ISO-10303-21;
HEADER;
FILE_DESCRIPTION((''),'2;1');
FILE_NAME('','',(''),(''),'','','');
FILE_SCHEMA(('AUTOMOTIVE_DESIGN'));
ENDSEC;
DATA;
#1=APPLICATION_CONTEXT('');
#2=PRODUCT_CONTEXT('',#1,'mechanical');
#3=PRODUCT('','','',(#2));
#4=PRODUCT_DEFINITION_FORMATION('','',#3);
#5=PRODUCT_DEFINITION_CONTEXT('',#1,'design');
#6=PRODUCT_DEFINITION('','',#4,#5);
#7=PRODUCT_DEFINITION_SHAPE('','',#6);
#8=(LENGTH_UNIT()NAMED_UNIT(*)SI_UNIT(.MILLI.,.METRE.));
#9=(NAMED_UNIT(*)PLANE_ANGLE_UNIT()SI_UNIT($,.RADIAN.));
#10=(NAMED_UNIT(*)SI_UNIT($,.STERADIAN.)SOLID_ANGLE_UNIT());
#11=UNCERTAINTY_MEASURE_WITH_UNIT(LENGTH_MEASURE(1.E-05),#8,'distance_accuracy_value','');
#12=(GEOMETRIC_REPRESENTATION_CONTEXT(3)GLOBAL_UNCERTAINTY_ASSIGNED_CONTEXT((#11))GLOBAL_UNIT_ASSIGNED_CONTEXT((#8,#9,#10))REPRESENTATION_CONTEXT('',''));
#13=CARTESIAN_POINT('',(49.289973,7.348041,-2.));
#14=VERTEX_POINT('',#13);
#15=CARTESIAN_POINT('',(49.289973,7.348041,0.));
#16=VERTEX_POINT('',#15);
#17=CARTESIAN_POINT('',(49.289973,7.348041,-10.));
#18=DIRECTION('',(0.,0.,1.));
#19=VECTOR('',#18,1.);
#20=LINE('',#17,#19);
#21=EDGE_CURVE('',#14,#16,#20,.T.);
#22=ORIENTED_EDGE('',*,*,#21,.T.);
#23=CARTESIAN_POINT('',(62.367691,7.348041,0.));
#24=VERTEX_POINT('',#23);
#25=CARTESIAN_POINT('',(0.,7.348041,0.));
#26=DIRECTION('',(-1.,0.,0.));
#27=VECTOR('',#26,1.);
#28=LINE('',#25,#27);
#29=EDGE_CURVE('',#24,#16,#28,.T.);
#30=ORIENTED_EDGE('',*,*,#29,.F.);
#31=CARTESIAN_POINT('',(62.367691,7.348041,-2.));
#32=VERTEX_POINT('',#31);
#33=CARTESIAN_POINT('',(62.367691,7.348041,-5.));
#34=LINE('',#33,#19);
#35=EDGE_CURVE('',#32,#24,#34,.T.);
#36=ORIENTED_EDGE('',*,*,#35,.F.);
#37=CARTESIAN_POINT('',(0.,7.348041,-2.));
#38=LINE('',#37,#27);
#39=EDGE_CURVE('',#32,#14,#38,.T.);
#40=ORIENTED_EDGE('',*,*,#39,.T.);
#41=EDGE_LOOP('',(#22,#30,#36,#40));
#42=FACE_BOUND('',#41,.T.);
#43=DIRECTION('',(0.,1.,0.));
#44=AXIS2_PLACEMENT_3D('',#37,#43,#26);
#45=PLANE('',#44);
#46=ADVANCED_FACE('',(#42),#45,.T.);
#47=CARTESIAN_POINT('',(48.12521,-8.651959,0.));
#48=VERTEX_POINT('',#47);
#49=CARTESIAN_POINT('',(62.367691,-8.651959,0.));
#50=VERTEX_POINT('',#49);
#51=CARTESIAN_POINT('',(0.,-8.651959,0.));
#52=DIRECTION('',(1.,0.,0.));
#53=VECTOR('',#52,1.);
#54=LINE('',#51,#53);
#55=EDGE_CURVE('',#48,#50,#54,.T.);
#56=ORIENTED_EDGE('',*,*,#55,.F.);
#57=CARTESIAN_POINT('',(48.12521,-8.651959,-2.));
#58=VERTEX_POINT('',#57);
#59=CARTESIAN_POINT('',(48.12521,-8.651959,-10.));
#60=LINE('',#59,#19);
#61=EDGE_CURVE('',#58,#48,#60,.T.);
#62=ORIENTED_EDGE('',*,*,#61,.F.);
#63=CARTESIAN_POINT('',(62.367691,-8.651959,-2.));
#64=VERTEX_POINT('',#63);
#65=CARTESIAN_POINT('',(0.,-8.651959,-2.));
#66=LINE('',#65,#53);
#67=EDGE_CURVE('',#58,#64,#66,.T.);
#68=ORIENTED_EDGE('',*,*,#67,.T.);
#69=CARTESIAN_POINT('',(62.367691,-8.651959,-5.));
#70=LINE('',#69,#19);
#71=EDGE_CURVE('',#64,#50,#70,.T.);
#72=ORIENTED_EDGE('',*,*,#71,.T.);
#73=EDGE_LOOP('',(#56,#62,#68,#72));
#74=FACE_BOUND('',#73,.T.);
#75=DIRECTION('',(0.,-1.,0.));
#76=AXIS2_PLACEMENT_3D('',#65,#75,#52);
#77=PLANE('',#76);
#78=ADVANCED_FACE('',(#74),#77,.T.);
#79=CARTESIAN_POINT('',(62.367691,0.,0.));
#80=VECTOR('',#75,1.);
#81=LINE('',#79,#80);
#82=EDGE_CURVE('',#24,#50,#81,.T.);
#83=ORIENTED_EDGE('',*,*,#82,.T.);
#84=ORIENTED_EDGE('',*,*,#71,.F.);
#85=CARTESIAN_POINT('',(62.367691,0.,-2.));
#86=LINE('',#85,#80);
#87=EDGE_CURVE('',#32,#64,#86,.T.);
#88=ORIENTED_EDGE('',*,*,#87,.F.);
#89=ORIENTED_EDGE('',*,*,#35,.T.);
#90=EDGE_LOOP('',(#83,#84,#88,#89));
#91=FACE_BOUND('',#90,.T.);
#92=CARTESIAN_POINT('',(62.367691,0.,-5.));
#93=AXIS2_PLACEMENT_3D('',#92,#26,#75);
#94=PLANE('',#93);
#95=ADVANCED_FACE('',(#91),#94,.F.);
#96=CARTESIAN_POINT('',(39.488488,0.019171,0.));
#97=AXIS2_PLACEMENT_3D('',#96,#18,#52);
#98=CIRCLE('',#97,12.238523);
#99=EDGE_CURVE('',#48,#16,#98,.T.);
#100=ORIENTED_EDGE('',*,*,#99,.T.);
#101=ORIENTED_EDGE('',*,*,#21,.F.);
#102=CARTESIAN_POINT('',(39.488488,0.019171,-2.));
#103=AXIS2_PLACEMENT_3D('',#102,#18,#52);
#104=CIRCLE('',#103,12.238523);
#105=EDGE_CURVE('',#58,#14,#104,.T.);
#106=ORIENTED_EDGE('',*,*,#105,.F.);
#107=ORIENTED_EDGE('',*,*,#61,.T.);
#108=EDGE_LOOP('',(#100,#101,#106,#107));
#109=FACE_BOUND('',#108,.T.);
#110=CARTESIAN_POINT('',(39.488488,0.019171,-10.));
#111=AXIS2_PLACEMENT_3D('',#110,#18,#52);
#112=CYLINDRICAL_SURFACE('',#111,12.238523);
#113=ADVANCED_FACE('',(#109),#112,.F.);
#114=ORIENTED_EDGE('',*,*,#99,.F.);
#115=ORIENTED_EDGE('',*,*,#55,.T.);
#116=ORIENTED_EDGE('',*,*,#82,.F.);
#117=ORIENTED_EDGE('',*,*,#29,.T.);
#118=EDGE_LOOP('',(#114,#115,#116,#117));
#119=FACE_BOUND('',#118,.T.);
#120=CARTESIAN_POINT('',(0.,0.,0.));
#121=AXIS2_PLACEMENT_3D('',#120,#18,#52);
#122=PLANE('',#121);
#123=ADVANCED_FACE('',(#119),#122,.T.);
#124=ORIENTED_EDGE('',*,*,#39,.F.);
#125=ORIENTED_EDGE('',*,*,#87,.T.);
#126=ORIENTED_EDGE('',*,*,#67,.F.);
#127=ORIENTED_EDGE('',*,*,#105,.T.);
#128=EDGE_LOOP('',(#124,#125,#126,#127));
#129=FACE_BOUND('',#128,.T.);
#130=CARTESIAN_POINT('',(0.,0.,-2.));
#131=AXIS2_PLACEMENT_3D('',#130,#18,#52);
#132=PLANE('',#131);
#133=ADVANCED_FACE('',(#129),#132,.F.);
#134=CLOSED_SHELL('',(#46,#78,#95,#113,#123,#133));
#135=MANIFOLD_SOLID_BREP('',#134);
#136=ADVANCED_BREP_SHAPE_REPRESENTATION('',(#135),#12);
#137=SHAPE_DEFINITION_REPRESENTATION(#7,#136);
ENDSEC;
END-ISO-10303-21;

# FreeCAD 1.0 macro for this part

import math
import FreeCAD as App
import Part
import Sketcher

doc = App.newDocument("Part")
params = doc.addObject("Spreadsheet::Sheet", "Params")
for row, (alias, value) in enumerate([
    ("sketch1_height", "16 mm"),
    ("pad1_length", "2 mm"),
    ("sketch2_width", "5 mm"),
    ("sketch2_height", "16 mm"),
    ("pocket1_length", "5 mm"),
    ("pocket2_length", "10 mm"),
], start=1):
    params.set(f"A{row}", alias)
    params.set(f"B{row}", "=" + value)
    params.setAlias(f"B{row}", alias)

body = doc.addObject("PartDesign::Body", "Body")

sketch1 = body.newObject("Sketcher::SketchObject", "Sketch")
sketch1.AttachmentSupport = (doc.getObject("XY_Plane"), [""])
sketch1.MapMode = "FlatFace"
sketch1.addGeometry([
    Part.LineSegment(App.Vector(39.660704, 7.348041, 0), App.Vector(39.998204, -8.651959, 0)),
    Part.LineSegment(App.Vector(39.998204, -8.651959, 0), App.Vector(67.367691, -8.651959, 0)),
    Part.LineSegment(App.Vector(67.367691, -8.651959, 0), App.Vector(67.367691, 7.348041, 0)),
    Part.LineSegment(App.Vector(67.367691, 7.348041, 0), App.Vector(39.660704, 7.348041, 0)),
], False)
sketch1.addConstraint([
    Sketcher.Constraint("Coincident", 0, 2, 1, 1),
    Sketcher.Constraint("Coincident", 1, 2, 2, 1),
    Sketcher.Constraint("Coincident", 2, 2, 3, 1),
    Sketcher.Constraint("Coincident", 3, 2, 0, 1),
    Sketcher.Constraint("Horizontal", 1),
    Sketcher.Constraint("Vertical", 2),
    Sketcher.Constraint("Horizontal", 3),
    Sketcher.Constraint("DistanceY", 2, 1, 2, 2, 16.0),
    Sketcher.Constraint("DistanceX", 3, 2, 0, 2, 0.3375),
    Sketcher.Constraint("DistanceX", 1, 1, 1, 2, 27.369487),
    Sketcher.Constraint("DistanceY", 0, 2, -1, 1, 8.651959),
    Sketcher.Constraint("DistanceX", -1, 1, 1, 2, 67.367691),
])
sketch1.setExpression("Constraints[7]", "Params.sketch1_height")
pad1 = body.newObject("PartDesign::Pad", "Pad")
pad1.Profile = sketch1
pad1.setExpression("Length", "Params.pad1_length")
pad1.Reversed = True

sketch2 = body.newObject("Sketcher::SketchObject", "Sketch001")
sketch2.AttachmentSupport = (doc.getObject("XY_Plane"), [""])
sketch2.MapMode = "FlatFace"
sketch2.addGeometry([
    Part.LineSegment(App.Vector(62.367691, 7.348041, 0), App.Vector(62.367691, -8.651959, 0)),
    Part.LineSegment(App.Vector(62.367691, -8.651959, 0), App.Vector(67.367691, -8.651959, 0)),
    Part.LineSegment(App.Vector(67.367691, -8.651959, 0), App.Vector(67.367691, 7.348041, 0)),
    Part.LineSegment(App.Vector(67.367691, 7.348041, 0), App.Vector(62.367691, 7.348041, 0)),
], False)
sketch2.addConstraint([
    Sketcher.Constraint("Coincident", 0, 2, 1, 1),
    Sketcher.Constraint("Coincident", 1, 2, 2, 1),
    Sketcher.Constraint("Coincident", 2, 2, 3, 1),
    Sketcher.Constraint("Coincident", 3, 2, 0, 1),
    Sketcher.Constraint("Vertical", 0),
    Sketcher.Constraint("Horizontal", 1),
    Sketcher.Constraint("Vertical", 2),
    Sketcher.Constraint("Horizontal", 3),
    Sketcher.Constraint("DistanceX", 1, 1, 1, 2, 5.0),
    Sketcher.Constraint("DistanceY", 0, 2, 0, 1, 16.0),
    Sketcher.Constraint("DistanceX", -1, 1, 0, 2, 62.367691),
    Sketcher.Constraint("DistanceY", 0, 2, -1, 1, 8.651959),
])
sketch2.setExpression("Constraints[8]", "Params.sketch2_width")
sketch2.setExpression("Constraints[9]", "Params.sketch2_height")
pocket1 = body.newObject("PartDesign::Pocket", "Pocket")
pocket1.Profile = sketch2
pocket1.setExpression("Length", "Params.pocket1_length")

sketch3 = body.newObject("Sketcher::SketchObject", "Sketch002")
sketch3.AttachmentSupport = (doc.getObject("XY_Plane"), [""])
sketch3.MapMode = "FlatFace"
sketch3.addGeometry([
    Part.LineSegment(App.Vector(39.660704, 7.348041, 0), App.Vector(39.998204, -8.651959, 0)),
    Part.LineSegment(App.Vector(39.998204, -8.651959, 0), App.Vector(48.12521, -8.651959, 0)),
    Part.ArcOfCircle(Part.Circle(App.Vector(39.488488, 0.019171, 0), App.Vector(0, 0, 1), 12.238523), math.radians(-45.113902), math.radians(36.78659)),
    Part.LineSegment(App.Vector(49.289973, 7.348041, 0), App.Vector(39.660704, 7.348041, 0)),
], False)
sketch3.addConstraint([
    Sketcher.Constraint("Coincident", 0, 2, 1, 1),
    Sketcher.Constraint("Coincident", 1, 2, 2, 1),
    Sketcher.Constraint("Coincident", 2, 2, 3, 1),
    Sketcher.Constraint("Coincident", 3, 2, 0, 1),
    Sketcher.Constraint("Horizontal", 1),
    Sketcher.Constraint("Horizontal", 3),
    Sketcher.Constraint("DistanceY", 1, 2, 2, 2, 16.0),
    Sketcher.Constraint("Radius", 2, 12.238523),
    Sketcher.Constraint("DistanceX", 3, 2, 3, 1, 9.62927),
    Sketcher.Constraint("DistanceX", 3, 2, 0, 2, 0.3375),
    Sketcher.Constraint("DistanceX", 1, 1, 1, 2, 8.127006),
    Sketcher.Constraint("DistanceY", -1, 1, 2, 3, 0.019171),
    Sketcher.Constraint("DistanceX", -1, 1, 1, 2, 48.12521),
])
pocket2 = body.newObject("PartDesign::Pocket", "Pocket001")
pocket2.Profile = sketch3
pocket2.setExpression("Length", "Params.pocket2_length")

doc.recompute()
